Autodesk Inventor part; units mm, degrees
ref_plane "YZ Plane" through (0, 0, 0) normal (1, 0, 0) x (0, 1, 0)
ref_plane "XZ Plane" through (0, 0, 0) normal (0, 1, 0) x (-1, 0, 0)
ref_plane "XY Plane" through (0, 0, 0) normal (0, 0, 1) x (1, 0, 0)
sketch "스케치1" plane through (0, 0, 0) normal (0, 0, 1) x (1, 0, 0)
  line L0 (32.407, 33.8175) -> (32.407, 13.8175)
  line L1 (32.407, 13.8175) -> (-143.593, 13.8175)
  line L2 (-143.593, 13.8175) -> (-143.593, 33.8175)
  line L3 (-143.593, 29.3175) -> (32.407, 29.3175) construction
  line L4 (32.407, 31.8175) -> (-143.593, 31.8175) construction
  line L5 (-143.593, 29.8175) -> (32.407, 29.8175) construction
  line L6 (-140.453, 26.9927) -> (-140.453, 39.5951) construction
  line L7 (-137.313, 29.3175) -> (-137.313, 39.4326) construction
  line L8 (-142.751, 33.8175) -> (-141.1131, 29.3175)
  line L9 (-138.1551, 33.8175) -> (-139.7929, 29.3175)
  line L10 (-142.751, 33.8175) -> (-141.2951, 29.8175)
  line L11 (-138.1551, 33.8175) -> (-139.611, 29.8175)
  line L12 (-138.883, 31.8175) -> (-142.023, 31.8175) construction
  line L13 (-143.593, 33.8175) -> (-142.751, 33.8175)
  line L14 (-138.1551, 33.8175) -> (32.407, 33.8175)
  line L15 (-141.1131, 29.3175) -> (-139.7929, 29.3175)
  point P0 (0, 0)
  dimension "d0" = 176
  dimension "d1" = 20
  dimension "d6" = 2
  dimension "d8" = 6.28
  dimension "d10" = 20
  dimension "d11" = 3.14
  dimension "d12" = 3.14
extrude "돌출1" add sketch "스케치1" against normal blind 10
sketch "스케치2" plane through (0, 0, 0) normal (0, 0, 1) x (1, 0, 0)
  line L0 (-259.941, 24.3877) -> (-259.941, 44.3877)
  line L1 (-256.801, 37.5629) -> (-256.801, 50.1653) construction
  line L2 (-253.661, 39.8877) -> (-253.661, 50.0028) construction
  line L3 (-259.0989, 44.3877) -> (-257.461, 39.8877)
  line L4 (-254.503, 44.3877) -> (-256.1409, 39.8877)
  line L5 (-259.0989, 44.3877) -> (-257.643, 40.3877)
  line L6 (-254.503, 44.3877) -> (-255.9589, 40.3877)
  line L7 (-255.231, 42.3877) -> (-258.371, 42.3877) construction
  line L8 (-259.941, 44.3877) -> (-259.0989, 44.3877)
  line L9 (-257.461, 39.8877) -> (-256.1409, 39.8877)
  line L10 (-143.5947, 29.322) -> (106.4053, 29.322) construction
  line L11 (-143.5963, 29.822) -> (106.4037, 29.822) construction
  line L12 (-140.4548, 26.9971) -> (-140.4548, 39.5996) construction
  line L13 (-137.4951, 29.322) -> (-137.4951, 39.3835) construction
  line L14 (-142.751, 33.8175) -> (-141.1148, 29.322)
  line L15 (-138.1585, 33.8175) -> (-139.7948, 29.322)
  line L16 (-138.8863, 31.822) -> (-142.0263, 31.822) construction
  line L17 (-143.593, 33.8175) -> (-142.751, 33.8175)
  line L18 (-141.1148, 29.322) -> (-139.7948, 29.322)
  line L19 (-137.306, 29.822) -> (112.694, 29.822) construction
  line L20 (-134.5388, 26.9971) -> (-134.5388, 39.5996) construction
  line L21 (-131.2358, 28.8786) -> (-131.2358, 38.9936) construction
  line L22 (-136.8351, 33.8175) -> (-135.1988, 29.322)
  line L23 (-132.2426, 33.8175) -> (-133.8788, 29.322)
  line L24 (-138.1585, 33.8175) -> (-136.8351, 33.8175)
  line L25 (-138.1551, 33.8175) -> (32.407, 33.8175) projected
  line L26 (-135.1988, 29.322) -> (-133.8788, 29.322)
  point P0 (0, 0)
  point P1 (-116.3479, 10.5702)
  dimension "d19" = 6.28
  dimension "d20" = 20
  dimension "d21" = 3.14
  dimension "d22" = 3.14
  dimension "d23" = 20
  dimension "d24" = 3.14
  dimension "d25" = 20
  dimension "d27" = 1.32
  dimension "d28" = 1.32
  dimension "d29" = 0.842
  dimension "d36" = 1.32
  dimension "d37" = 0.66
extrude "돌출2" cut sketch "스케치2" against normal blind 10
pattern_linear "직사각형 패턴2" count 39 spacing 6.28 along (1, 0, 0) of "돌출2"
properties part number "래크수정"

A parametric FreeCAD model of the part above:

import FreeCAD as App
import Part
import Sketcher

V = App.Vector
Q = App.Units.Quantity

doc = App.newDocument("Part")
body = doc.addObject("PartDesign::Body", "Body")

# Sketch on XY plane
sketch1 = body.newObject("Sketcher::SketchObject", "Sketch")
sketch1.AttachmentSupport = (doc.getObject("XY_Plane"), [""])
sketch1.MapMode = "FlatFace"
sketch1.addGeometry([
    Part.LineSegment(V(32.407, 13.8175, 0), V(32.407, 33.8175, 0)),  # 0
    Part.LineSegment(V(32.407, 33.8175, 0), V(-138.1551, 33.8175, 0)),  # 1
    Part.LineSegment(V(-138.1551, 33.8175, 0), V(-139.7929, 29.3175, 0)),  # 2
    Part.LineSegment(V(-139.7929, 29.3175, 0), V(-141.1131, 29.3175, 0)),  # 3
    Part.LineSegment(V(-141.1131, 29.3175, 0), V(-142.751, 33.8175, 0)),  # 4
    Part.LineSegment(V(-142.751, 33.8175, 0), V(-143.593, 33.8175, 0)),  # 5
    Part.LineSegment(V(-143.593, 33.8175, 0), V(-143.593, 13.8175, 0)),  # 6
    Part.LineSegment(V(-143.593, 13.8175, 0), V(32.407, 13.8175, 0)),  # 7
], False)
sketch1.addConstraint([
    Sketcher.Constraint("Coincident", 0, 2, 1, 1),
    Sketcher.Constraint("Coincident", 1, 2, 2, 1),
    Sketcher.Constraint("Coincident", 2, 2, 3, 1),
    Sketcher.Constraint("Coincident", 3, 2, 4, 1),
    Sketcher.Constraint("Coincident", 4, 2, 5, 1),
    Sketcher.Constraint("Coincident", 5, 2, 6, 1),
    Sketcher.Constraint("Coincident", 6, 2, 7, 1),
    Sketcher.Constraint("Coincident", 7, 2, 0, 1),
    Sketcher.Constraint("Vertical", 0),
    Sketcher.Constraint("Horizontal", 1),
    Sketcher.Constraint("Horizontal", 3),
    Sketcher.Constraint("Horizontal", 5),
    Sketcher.Constraint("Vertical", 6),
    Sketcher.Constraint("Horizontal", 7),
    Sketcher.Constraint("Horizontal", 1, 2, 4, 2),
    Sketcher.Constraint("Equal", 2, 4),
    Sketcher.Constraint("DistanceX", 7, 1, 7, 2, Q("176 mm")),
    Sketcher.Constraint("DistanceY", 0, 1, 0, 2, Q("20 mm")),
    Sketcher.Constraint("Angle", 2, Q("-109.9993 deg")),
    Sketcher.Constraint("DistanceY", 2, 2, 1, 2, Q("4.5 mm")),
    Sketcher.Constraint("DistanceX", 2, 2, 0, 2, Q("172.2 mm")),
    Sketcher.Constraint("DistanceX", 5, 2, 5, 1, Q("0.842 mm")),
    Sketcher.Constraint("DistanceX", -1, 1, 0, 2, Q("32.407 mm")),
    Sketcher.Constraint("DistanceY", -1, 1, 0, 2, Q("33.8175 mm")),
])
pad1 = body.newObject("PartDesign::Pad", "Pad")
pad1.Profile = sketch1
pad1.Length = 10
pad1.Reversed = True

# Sketch on XY plane
sketch2 = body.newObject("Sketcher::SketchObject", "Sketch001")
sketch2.AttachmentSupport = (doc.getObject("XY_Plane"), [""])
sketch2.MapMode = "FlatFace"
sketch2.addGeometry([
    Part.LineSegment(V(-132.2426, 33.8175, 0), V(-136.8351, 33.8175, 0)),
    Part.LineSegment(V(-136.8351, 33.8175, 0), V(-135.1988, 29.322, 0)),
    Part.LineSegment(V(-135.1988, 29.322, 0), V(-133.8788, 29.322, 0)),
    Part.LineSegment(V(-133.8788, 29.322, 0), V(-132.2426, 33.8175, 0)),
], False)
sketch2.addConstraint([
    Sketcher.Constraint("Coincident", 0, 2, 1, 1),
    Sketcher.Constraint("Coincident", 1, 2, 2, 1),
    Sketcher.Constraint("Coincident", 2, 2, 3, 1),
    Sketcher.Constraint("Coincident", 3, 2, 0, 1),
    Sketcher.Constraint("Horizontal", 0),
    Sketcher.Constraint("Horizontal", 2),
    Sketcher.Constraint("Equal", 1, 3),
    Sketcher.Constraint("DistanceX", 2, 1, 2, 2, Q("1.32 mm")),
    Sketcher.Constraint("Angle", 1, Q("-69.9992 deg")),
    Sketcher.Constraint("Distance", 1, Q("4.784 mm")),
    Sketcher.Constraint("DistanceX", 0, 2, -1, 1, Q("136.835 mm")),
    Sketcher.Constraint("DistanceY", -1, 1, 1, 2, Q("29.322 mm")),
])
pocket1 = body.newObject("PartDesign::Pocket", "Pocket")
pocket1.Profile = sketch2
pocket1.Length = 10
doc.recompute()

linearpattern = body.newObject("PartDesign::LinearPattern", "LinearPattern")
linearpattern.Originals = [pocket1]
linearpattern.Direction = (doc.getObject("X_Axis"), [""])
linearpattern.Mode = "offset"
linearpattern.Offset = 6.28
linearpattern.Occurrences = 39
body.Tip = linearpattern

doc.recompute()
